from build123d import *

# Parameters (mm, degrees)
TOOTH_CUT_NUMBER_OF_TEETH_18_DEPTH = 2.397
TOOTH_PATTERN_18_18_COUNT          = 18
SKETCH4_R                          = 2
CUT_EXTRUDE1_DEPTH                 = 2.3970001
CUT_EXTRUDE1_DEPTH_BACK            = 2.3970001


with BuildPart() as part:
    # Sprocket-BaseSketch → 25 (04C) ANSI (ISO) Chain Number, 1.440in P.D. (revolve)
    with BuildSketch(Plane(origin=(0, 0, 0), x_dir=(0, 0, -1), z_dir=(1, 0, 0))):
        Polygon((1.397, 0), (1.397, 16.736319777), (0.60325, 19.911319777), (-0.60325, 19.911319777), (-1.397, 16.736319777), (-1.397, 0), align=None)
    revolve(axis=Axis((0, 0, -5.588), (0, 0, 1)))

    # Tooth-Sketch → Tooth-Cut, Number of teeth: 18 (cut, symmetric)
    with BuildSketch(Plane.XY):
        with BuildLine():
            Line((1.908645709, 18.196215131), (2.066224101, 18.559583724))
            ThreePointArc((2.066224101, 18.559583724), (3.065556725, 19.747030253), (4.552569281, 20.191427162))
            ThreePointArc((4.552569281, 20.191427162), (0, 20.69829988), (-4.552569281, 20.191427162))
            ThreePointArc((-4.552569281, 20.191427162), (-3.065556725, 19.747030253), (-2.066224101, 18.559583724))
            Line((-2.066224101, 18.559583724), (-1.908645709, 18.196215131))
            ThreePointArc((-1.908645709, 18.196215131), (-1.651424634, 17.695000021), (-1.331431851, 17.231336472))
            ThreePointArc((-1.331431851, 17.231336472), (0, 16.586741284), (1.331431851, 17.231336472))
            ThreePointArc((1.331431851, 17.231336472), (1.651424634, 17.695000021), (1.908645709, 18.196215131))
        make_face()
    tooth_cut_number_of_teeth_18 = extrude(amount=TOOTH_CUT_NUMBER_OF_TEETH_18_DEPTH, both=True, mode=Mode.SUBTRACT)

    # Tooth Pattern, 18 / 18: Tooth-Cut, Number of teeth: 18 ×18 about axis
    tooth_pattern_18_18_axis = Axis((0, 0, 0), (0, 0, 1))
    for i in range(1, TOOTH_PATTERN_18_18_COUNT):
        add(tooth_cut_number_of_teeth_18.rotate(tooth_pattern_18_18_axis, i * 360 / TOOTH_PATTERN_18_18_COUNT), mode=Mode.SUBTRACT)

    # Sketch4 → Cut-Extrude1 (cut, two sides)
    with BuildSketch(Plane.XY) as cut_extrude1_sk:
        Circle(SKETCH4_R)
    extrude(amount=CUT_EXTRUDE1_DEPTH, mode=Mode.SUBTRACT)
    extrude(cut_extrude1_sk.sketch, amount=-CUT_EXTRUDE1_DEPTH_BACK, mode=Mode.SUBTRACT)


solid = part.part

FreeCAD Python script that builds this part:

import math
import FreeCAD as App
import Part
import Sketcher
Q = App.Units.Quantity


def add_polygon(sketch, points):
    """Adds a closed chain of lines whose ends are joined by coincident constraints."""
    first, n = sketch.GeometryCount, len(points)
    for a, b in zip(points, points[1:] + points[:1]):
        sketch.addGeometry(Part.LineSegment(App.Vector(*a, 0), App.Vector(*b, 0)), False)
    for i in range(n):
        sketch.addConstraint(Sketcher.Constraint("Coincident", first + i, 2, first + (i + 1) % n, 1))

doc = App.newDocument("Part")
body = doc.addObject("PartDesign::Body", "Body")

sketch1 = doc.addObject("Sketcher::SketchObject", "Sketch")
body.addObject(sketch1)
sketch1.AttachmentSupport = (doc.YZ_Plane, [""])
sketch1.MapMode = "FlatFace"
add_polygon(sketch1, [(0, -1.397), (16.73632, -1.397), (19.91132, -0.60325), (19.91132, 0.60325), (16.73632, 1.397), (0, 1.397)])
sketch1.addConstraint([
    Sketcher.Constraint("Horizontal", 0),
    Sketcher.Constraint("Vertical", 2),
    Sketcher.Constraint("Horizontal", 4),
    Sketcher.Constraint("Vertical", 5),
    Sketcher.Constraint("Symmetric", 4, 2, 5, 2, -1, 1),
    Sketcher.Constraint("Vertical", 0, 2, 3, 2),
    Sketcher.Constraint("Equal", 1, 3),
    Sketcher.Constraint("DistanceY", 5, 2, 5, 1, Q("2.794 mm")),
    Sketcher.Constraint("DistanceY", 2, 1, 2, 2, Q("1.2065 mm")),
    Sketcher.Constraint("DistanceX", 0, 2, 1, 2, Q("3.175 mm")),
    Sketcher.Constraint("DistanceX", 0, 1, 0, 2, Q("16.73632 mm")),
])
revolution = doc.addObject("PartDesign::Revolution", "Revolution")
body.addObject(revolution)
revolution.Profile = sketch1
revolution.ReferenceAxis = (sketch1, ["V_Axis"])
revolution.Angle = 360

sketch2 = doc.addObject("Sketcher::SketchObject", "Sketch001")
body.addObject(sketch2)
sketch2.AttachmentSupport = (doc.XY_Plane, [""])
sketch2.MapMode = "FlatFace"
sketch2.addGeometry([
    Part.LineSegment(App.Vector(1.908646, 18.196215, 0), App.Vector(2.066224, 18.559584, 0)),
    Part.ArcOfCircle(Part.Circle(App.Vector(4.552569, 17.481355, 0), App.Vector(0, 0, 1), 2.710072), math.radians(90), math.radians(156.555556)),
    Part.ArcOfCircle(Part.Circle(App.Vector(0, 0, 0), App.Vector(0, 0, 1), 20.6983), math.radians(77.293966), math.radians(102.706034)),
    Part.ArcOfCircle(Part.Circle(App.Vector(-4.552569, 17.481355, 0), App.Vector(0, 0, 1), 2.710072), math.radians(23.444444), math.radians(90)),
    Part.LineSegment(App.Vector(-2.066224, 18.559584, 0), App.Vector(-1.908646, 18.196215, 0)),
    Part.ArcOfCircle(Part.Circle(App.Vector(2.072112, 19.92251, 0), App.Vector(0, 0, 1), 4.338955), math.radians(-156.555556), math.radians(-141.666667)),
    Part.ArcOfCircle(Part.Circle(App.Vector(0, 18.284096, 0), App.Vector(0, 0, 1), 1.697355), math.radians(-141.666667), math.radians(-38.333333)),
    Part.ArcOfCircle(Part.Circle(App.Vector(-2.072112, 19.92251, 0), App.Vector(0, 0, 1), 4.338955), math.radians(-38.333333), math.radians(-23.444444)),
], False)
sketch2.addConstraint([
    Sketcher.Constraint("Tangent", 0, 2, 1, 2),
    Sketcher.Constraint("Coincident", 1, 1, 2, 1),
    Sketcher.Constraint("Coincident", 2, 2, 3, 2),
    Sketcher.Constraint("Tangent", 3, 1, 4, 1),
    Sketcher.Constraint("Tangent", 4, 2, 5, 1),
    Sketcher.Constraint("Tangent", 5, 2, 6, 1),
    Sketcher.Constraint("Tangent", 6, 2, 7, 1),
    Sketcher.Constraint("Tangent", 7, 2, 0, 1),
    Sketcher.Constraint("Coincident", 2, 3, -1, 1),
    Sketcher.Constraint("Equal", 1, 3),
    Sketcher.Constraint("Equal", 5, 7),
    Sketcher.Constraint("Symmetric", 1, 3, 3, 3, -2),
    Sketcher.Constraint("Symmetric", 5, 3, 7, 3, -2),
    Sketcher.Constraint("Vertical", 3, 3, 2, 2),
    Sketcher.Constraint("Radius", 2, Q("20.6983 mm")),
    Sketcher.Constraint("Radius", 1, Q("2.710072 mm")),
    Sketcher.Constraint("Radius", 5, Q("4.338955 mm")),
    Sketcher.Constraint("Radius", 6, Q("1.697355 mm")),
    Sketcher.Constraint("DistanceX", -1, 1, 1, 3, Q("4.552569 mm")),
    Sketcher.Constraint("DistanceY", -1, 1, 5, 3, Q("19.92251 mm")),
    Sketcher.Constraint("DistanceX", 5, 2, -1, 1, Q("1.331432 mm")),
])
pocket1 = doc.addObject("PartDesign::Pocket", "Pocket")
body.addObject(pocket1)
pocket1.Profile = sketch2
pocket1.Length = 4.794
pocket1.Midplane = True
doc.recompute()

polarpattern = doc.addObject("PartDesign::PolarPattern", "PolarPattern")
body.addObject(polarpattern)
polarpattern.Originals = [pocket1]
polarpattern.Axis = (doc.Z_Axis, [""])
polarpattern.Angle = 360
polarpattern.Occurrences = 18
body.Tip = polarpattern

sketch3 = doc.addObject("Sketcher::SketchObject", "Sketch002")
body.addObject(sketch3)
sketch3.AttachmentSupport = (doc.XY_Plane, [""])
sketch3.MapMode = "FlatFace"
sketch3.addGeometry(Part.Circle(App.Vector(0, 0, 0), App.Vector(0, 0, 1), 2), False)
sketch3.addConstraint([
    Sketcher.Constraint("Coincident", 0, 3, -1, 1),
    Sketcher.Constraint("Diameter", 0, Q("4 mm")),
])
pocket2 = doc.addObject("PartDesign::Pocket", "Pocket001")
body.addObject(pocket2)
pocket2.Profile = sketch3
pocket2.Type = "ThroughAll"
pocket2.Midplane = True

doc.recompute()
